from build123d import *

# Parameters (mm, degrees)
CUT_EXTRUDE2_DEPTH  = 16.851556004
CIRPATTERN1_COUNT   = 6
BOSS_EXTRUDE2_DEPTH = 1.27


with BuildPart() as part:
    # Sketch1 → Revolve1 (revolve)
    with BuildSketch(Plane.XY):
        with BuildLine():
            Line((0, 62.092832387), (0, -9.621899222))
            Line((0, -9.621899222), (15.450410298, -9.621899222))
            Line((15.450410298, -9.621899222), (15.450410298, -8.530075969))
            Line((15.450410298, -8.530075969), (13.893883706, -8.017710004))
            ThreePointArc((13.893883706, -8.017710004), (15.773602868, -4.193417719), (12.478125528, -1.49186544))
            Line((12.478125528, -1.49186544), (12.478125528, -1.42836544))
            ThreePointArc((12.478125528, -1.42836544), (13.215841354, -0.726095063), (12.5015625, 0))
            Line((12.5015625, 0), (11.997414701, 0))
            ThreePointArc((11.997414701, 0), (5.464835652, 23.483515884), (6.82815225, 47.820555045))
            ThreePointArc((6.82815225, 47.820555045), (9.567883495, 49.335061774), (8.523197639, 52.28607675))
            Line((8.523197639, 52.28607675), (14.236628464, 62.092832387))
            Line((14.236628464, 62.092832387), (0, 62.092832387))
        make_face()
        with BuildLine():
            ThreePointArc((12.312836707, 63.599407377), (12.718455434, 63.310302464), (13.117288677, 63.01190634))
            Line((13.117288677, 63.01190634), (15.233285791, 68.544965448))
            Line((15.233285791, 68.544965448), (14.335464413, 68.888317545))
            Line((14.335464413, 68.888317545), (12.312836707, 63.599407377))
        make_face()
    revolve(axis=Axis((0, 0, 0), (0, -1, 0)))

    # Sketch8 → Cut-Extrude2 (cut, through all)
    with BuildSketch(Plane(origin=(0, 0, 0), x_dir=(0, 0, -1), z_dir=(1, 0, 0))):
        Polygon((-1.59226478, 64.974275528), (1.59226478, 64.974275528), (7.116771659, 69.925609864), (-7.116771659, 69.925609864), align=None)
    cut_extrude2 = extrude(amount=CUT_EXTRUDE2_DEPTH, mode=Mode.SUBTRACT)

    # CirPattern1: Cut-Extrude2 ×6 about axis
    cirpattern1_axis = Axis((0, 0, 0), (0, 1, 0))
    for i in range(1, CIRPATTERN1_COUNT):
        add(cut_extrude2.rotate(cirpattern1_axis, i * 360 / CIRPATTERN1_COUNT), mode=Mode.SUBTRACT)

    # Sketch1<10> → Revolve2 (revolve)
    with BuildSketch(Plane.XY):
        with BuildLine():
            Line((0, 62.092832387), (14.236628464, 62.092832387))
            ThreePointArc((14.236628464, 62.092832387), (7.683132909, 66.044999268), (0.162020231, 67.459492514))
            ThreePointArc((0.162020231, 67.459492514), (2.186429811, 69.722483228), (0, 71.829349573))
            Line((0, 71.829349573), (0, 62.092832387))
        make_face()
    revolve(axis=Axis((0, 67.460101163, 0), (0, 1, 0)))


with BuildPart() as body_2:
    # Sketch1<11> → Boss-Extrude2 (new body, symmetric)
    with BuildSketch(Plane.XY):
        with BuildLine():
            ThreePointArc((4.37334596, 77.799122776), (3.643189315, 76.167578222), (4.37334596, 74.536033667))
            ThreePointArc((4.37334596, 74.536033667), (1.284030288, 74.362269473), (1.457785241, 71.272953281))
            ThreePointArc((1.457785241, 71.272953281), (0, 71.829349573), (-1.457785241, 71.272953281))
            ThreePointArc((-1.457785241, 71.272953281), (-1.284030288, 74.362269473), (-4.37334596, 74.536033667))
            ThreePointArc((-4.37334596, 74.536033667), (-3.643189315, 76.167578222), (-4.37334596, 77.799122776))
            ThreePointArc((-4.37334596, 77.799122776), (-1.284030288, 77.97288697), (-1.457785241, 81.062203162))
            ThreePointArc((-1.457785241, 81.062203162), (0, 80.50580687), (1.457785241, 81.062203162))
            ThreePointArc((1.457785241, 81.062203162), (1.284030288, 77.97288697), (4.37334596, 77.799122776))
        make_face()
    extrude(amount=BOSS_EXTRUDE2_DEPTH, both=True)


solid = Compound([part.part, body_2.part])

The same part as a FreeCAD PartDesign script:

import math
import FreeCAD as App
import Part
import Sketcher

V = App.Vector
Q = App.Units.Quantity


def add_polygon(sketch, points):
    """Adds a closed chain of lines whose ends are joined by coincident constraints."""
    first, n = sketch.GeometryCount, len(points)
    for a, b in zip(points, points[1:] + points[:1]):
        sketch.addGeometry(Part.LineSegment(App.Vector(*a, 0), App.Vector(*b, 0)), False)
    for i in range(n):
        sketch.addConstraint(Sketcher.Constraint("Coincident", first + i, 2, first + (i + 1) % n, 1))

doc = App.newDocument("Part")
body = doc.addObject("PartDesign::Body", "Body")
body.AllowCompound = True

# Sketch on XY plane
sketch1 = doc.addObject("Sketcher::SketchObject", "Sketch")
body.addObject(sketch1)
sketch1.AttachmentSupport = (doc.XY_Plane, [""])
sketch1.MapMode = "FlatFace"
sketch1.addGeometry([
    Part.LineSegment(V(0, 62.09, 0), V(0, -9.62, 0)),  # 0
    Part.LineSegment(V(0, -9.62, 0), V(15.45, -9.62, 0)),  # 1
    Part.LineSegment(V(15.45, -9.62, 0), V(15.45, -8.53, 0)),  # 2
    Part.LineSegment(V(15.45, -8.53, 0), V(13.89, -8.02, 0)),  # 3
    Part.ArcOfCircle(Part.Circle(V(12.42, -4.92, 0), V(0, 0, 1), 3.43), math.radians(-65), math.radians(89)),  # 4
    Part.LineSegment(V(12.48, -1.49, 0), V(12.48, -1.43, 0)),  # 5
    Part.ArcOfCircle(Part.Circle(V(12.5, -0.71, 0), V(0, 0, 1), 0.71), math.radians(-92), math.radians(90)),  # 6
    Part.LineSegment(V(12.5, 0, 0), V(12, 0, 0)),  # 7
    Part.ArcOfCircle(Part.Circle(V(79.84, 31.52, 0), V(0, 0, 1), 74.81), math.radians(167), math.radians(205)),  # 8
    Part.ArcOfCircle(Part.Circle(V(7.3, 50.19, 0), V(0, 0, 1), 2.42), math.radians(-101), math.radians(60)),  # 9
    Part.LineSegment(V(8.52, 52.29, 0), V(14.24, 62.09, 0)),  # 10
    Part.LineSegment(V(14.24, 62.09, 0), V(0, 62.09, 0)),  # 11
    Part.ArcOfCircle(Part.Circle(V(0, 45.9, 0), V(0, 0, 1), 21.56), math.radians(52.54), math.radians(55.18)),  # 12
    Part.LineSegment(V(13.12, 63.01, 0), V(15.23, 68.54, 0)),  # 13
    Part.LineSegment(V(15.23, 68.54, 0), V(14.34, 68.89, 0)),  # 14
    Part.LineSegment(V(14.34, 68.89, 0), V(12.31, 63.6, 0)),  # 15
], False)
sketch1.addConstraint([
    Sketcher.Constraint("Coincident", 0, 2, 1, 1),
    Sketcher.Constraint("Coincident", 1, 2, 2, 1),
    Sketcher.Constraint("Coincident", 2, 2, 3, 1),
    Sketcher.Constraint("Coincident", 3, 2, 4, 1),
    Sketcher.Constraint("Coincident", 4, 2, 5, 1),
    Sketcher.Constraint("Coincident", 5, 2, 6, 1),
    Sketcher.Constraint("Tangent", 6, 2, 7, 1),
    Sketcher.Constraint("Coincident", 7, 2, 8, 2),
    Sketcher.Constraint("Coincident", 8, 1, 9, 1),
    Sketcher.Constraint("Coincident", 9, 2, 10, 1),
    Sketcher.Constraint("Coincident", 10, 2, 11, 1),
    Sketcher.Constraint("Coincident", 11, 2, 0, 1),
    Sketcher.Constraint("Coincident", 12, 1, 13, 1),
    Sketcher.Constraint("Coincident", 13, 2, 14, 1),
    Sketcher.Constraint("Coincident", 14, 2, 15, 1),
    Sketcher.Constraint("Coincident", 15, 2, 12, 2),
    Sketcher.Constraint("Vertical", 0),
    Sketcher.Constraint("Horizontal", 1),
    Sketcher.Constraint("Vertical", 2),
    Sketcher.Constraint("Vertical", 5),
    Sketcher.Constraint("Horizontal", 7),
    Sketcher.Constraint("Horizontal", 11),
    Sketcher.Constraint("PointOnObject", 12, 3, -2),
    Sketcher.Constraint("PointOnObject", 0, 2, -2),
    Sketcher.Constraint("PointOnObject", 6, 2, -1),
    Sketcher.Constraint("Perpendicular", 13, 14),
    Sketcher.Constraint("Perpendicular", 14, 15),
    Sketcher.Constraint("Radius", 4, Q("0.135 in")),
    Sketcher.Constraint("DistanceY", 5, 1, 5, 2, Q("0.0025 in")),
    Sketcher.Constraint("Radius", 8, 74.812149),
    Sketcher.Constraint("Radius", 6, 0.714375),
    Sketcher.Constraint("Radius", 9, 2.420983),
    Sketcher.Constraint("Radius", 12, 21.564894),
    Sketcher.Constraint("DistanceX", 1, 1, 1, 2, 15.45041),
    Sketcher.Constraint("DistanceX", 11, 2, 11, 1, 14.236628),
    Sketcher.Constraint("DistanceY", 0, 2, 0, 1, 71.714732),
    Sketcher.Constraint("DistanceY", 0, 2, -1, 1, 9.621899),
    Sketcher.Constraint("DistanceY", 2, 2, 6, 3, 7.815701),
    Sketcher.Constraint("DistanceY", 12, 1, 15, 2, 0.587501),
    Sketcher.Constraint("DistanceX", 7, 2, 7, 1, 0.504148),
    Sketcher.Constraint("DistanceX", -1, 1, 8, 3, 79.843689),
    Sketcher.Constraint("DistanceY", 3, 2, -1, 1, 8.01771),
    Sketcher.Constraint("DistanceX", -1, 1, 12, 1, 13.117289),
    Sketcher.Constraint("DistanceY", 4, 3, 6, 3, 4.20604),
    Sketcher.Constraint("DistanceX", 9, 3, 4, 3, 5.118079),
    Sketcher.Constraint("DistanceX", 9, 3, 8, 3, 72.539212),
    Sketcher.Constraint("DistanceY", 12, 3, 9, 3, 4.29901),
    Sketcher.Constraint("DistanceX", 6, 3, 3, 2, 1.392321),
    Sketcher.Constraint("DistanceX", 8, 1, 6, 2, 5.67341),
    Sketcher.Constraint("DistanceX", 9, 3, 9, 2, 1.218721),
    Sketcher.Constraint("DistanceY", 12, 1, 13, 2, 5.533059),
    Sketcher.Constraint("DistanceX", 9, 2, 13, 2, 6.710088),
])
revolution = doc.addObject("PartDesign::Revolution", "Revolution")
body.addObject(revolution)
revolution.Profile = sketch1
revolution.ReferenceAxis = (sketch1, ["V_Axis"])
revolution.Angle = 360

# Sketch on YZ plane
sketch2 = doc.addObject("Sketcher::SketchObject", "Sketch001")
body.addObject(sketch2)
sketch2.AttachmentSupport = (doc.YZ_Plane, [""])
sketch2.MapMode = "FlatFace"
add_polygon(sketch2, [(65, 1.6), (65, -1.6), (69.9, -7.1), (69.9, 7.1)])  # lines 0-3
sketch2.addConstraint([
    Sketcher.Constraint("Vertical", 0),
    Sketcher.Constraint("Vertical", 2),
    Sketcher.Constraint("Equal", 1, 3),
    Sketcher.Constraint("DistanceY", 0, 2, 0, 1, 3.18453),
    Sketcher.Constraint("DistanceY", 2, 1, 2, 2, 14.233543),
    Sketcher.Constraint("DistanceX", -1, 1, 1, 2, 69.92561),
    Sketcher.Constraint("DistanceY", 1, 2, -1, 1, 7.116772),
    Sketcher.Constraint("Distance", 1, 7.418618),
])
pocket1 = doc.addObject("PartDesign::Pocket", "Pocket")
body.addObject(pocket1)
pocket1.Profile = sketch2
pocket1.Type = "ThroughAll"
pocket1.Reversed = True
doc.recompute()

polarpattern = doc.addObject("PartDesign::PolarPattern", "PolarPattern")
body.addObject(polarpattern)
polarpattern.Originals = [pocket1]
polarpattern.Axis = (doc.Y_Axis, [""])
polarpattern.Angle = 360
polarpattern.Occurrences = 6
body.Tip = polarpattern

# Sketch on XY plane
sketch3 = doc.addObject("Sketcher::SketchObject", "Sketch002")
body.addObject(sketch3)
sketch3.AttachmentSupport = (doc.XY_Plane, [""])
sketch3.MapMode = "FlatFace"
sketch3.addGeometry([
    Part.LineSegment(V(0, 62.1, 0), V(14.2, 62.1, 0)),
    Part.ArcOfCircle(Part.Circle(V(0, 45.9, 0), V(0, 0, 1), 21.6), math.radians(49), math.radians(90)),
    Part.ArcOfCircle(Part.Circle(V(0, 69.6, 0), V(0, 0, 1), 2.2), math.radians(-86), math.radians(90)),
    Part.LineSegment(V(0, 71.8, 0), V(0, 62.1, 0)),
], False)
sketch3.addConstraint([
    Sketcher.Constraint("Coincident", 0, 2, 1, 1),
    Sketcher.Constraint("Coincident", 1, 2, 2, 1),
    Sketcher.Constraint("Coincident", 2, 2, 3, 1),
    Sketcher.Constraint("Coincident", 3, 2, 0, 1),
    Sketcher.Constraint("Horizontal", 0),
    Sketcher.Constraint("Vertical", 3),
    Sketcher.Constraint("PointOnObject", 1, 3, -2),
    Sketcher.Constraint("PointOnObject", 2, 3, -2),
    Sketcher.Constraint("PointOnObject", 2, 2, -2),
    Sketcher.Constraint("Radius", 1, 21.564894),
    Sketcher.Constraint("Radius", 2, 2.187932),
    Sketcher.Constraint("DistanceX", 0, 1, 0, 2, 14.236628),
    Sketcher.Constraint("DistanceY", 3, 2, 3, 1, 9.736517),
    Sketcher.Constraint("DistanceY", -1, 1, 2, 2, 71.82935),
])
revolution2 = doc.addObject("PartDesign::Revolution", "Revolution001")
body.addObject(revolution2)
revolution2.Profile = sketch3
revolution2.ReferenceAxis = (sketch3, ["V_Axis"])
revolution2.Angle = 360
body2 = doc.addObject("PartDesign::Body", "Body001")

# Sketch on XY plane
sketch4 = doc.addObject("Sketcher::SketchObject", "Sketch003")
body2.addObject(sketch4)
sketch4.AttachmentSupport = (doc.getObject("XY_Plane001"), [""])
sketch4.MapMode = "FlatFace"
sketch4.addGeometry([
    Part.ArcOfCircle(Part.Circle(V(5.8, 76.2, 0), V(0, 0, 1), 2.2), math.radians(132), math.radians(228)),  # 0
    Part.ArcOfCircle(Part.Circle(V(2.9, 79.4, 0), V(0, 0, 1), 2.2), math.radians(132), math.radians(312)),  # 1
    Part.ArcOfCircle(Part.Circle(V(0, 82.7, 0), V(0, 0, 1), 2.2), math.radians(-132), math.radians(-48)),  # 2
    Part.ArcOfCircle(Part.Circle(V(-2.9, 79.4, 0), V(0, 0, 1), 2.2), math.radians(-132), math.radians(48)),  # 3
    Part.ArcOfCircle(Part.Circle(V(-5.8, 76.2, 0), V(0, 0, 1), 2.2), math.radians(-48), math.radians(48)),  # 4
    Part.ArcOfCircle(Part.Circle(V(-2.9, 72.9, 0), V(0, 0, 1), 2.2), math.radians(-48), math.radians(132)),  # 5
    Part.ArcOfCircle(Part.Circle(V(0, 69.6, 0), V(0, 0, 1), 2.2), math.radians(48), math.radians(132)),  # 6
    Part.ArcOfCircle(Part.Circle(V(2.9, 72.9, 0), V(0, 0, 1), 2.2), math.radians(48), math.radians(228)),  # 7
], False)
sketch4.addConstraint([
    Sketcher.Constraint("Tangent", 0, 1, 1, 2),
    Sketcher.Constraint("Tangent", 1, 1, 2, 2),
    Sketcher.Constraint("Tangent", 2, 1, 3, 2),
    Sketcher.Constraint("Tangent", 3, 1, 4, 2),
    Sketcher.Constraint("Tangent", 4, 1, 5, 2),
    Sketcher.Constraint("Tangent", 5, 1, 6, 2),
    Sketcher.Constraint("Tangent", 6, 1, 7, 2),
    Sketcher.Constraint("Tangent", 7, 1, 0, 2),
    Sketcher.Constraint("Equal", 0, 1),
    Sketcher.Constraint("Equal", 1, 2),
    Sketcher.Constraint("Equal", 2, 3),
    Sketcher.Constraint("Equal", 3, 4),
    Sketcher.Constraint("Equal", 4, 5),
    Sketcher.Constraint("Equal", 5, 6),
    Sketcher.Constraint("Equal", 6, 7),
    Sketcher.Constraint("Symmetric", 1, 3, 3, 3, -2),
    Sketcher.Constraint("Symmetric", 5, 3, 7, 3, -2),
    Sketcher.Constraint("Vertical", 3, 3, 5, 3),
    Sketcher.Constraint("Radius", 0, 2.187932),
    Sketcher.Constraint("DistanceX", -1, 1, 0, 3, 5.831121),
    Sketcher.Constraint("DistanceY", -1, 1, 0, 3, 76.167578),
    Sketcher.Constraint("DistanceX", -1, 1, 1, 3, 2.91557),
])
pad1 = doc.addObject("PartDesign::Pad", "Pad")
body2.addObject(pad1)
pad1.Profile = sketch4
pad1.Length = Q("0.1 in")
pad1.Midplane = True

doc.recompute()
